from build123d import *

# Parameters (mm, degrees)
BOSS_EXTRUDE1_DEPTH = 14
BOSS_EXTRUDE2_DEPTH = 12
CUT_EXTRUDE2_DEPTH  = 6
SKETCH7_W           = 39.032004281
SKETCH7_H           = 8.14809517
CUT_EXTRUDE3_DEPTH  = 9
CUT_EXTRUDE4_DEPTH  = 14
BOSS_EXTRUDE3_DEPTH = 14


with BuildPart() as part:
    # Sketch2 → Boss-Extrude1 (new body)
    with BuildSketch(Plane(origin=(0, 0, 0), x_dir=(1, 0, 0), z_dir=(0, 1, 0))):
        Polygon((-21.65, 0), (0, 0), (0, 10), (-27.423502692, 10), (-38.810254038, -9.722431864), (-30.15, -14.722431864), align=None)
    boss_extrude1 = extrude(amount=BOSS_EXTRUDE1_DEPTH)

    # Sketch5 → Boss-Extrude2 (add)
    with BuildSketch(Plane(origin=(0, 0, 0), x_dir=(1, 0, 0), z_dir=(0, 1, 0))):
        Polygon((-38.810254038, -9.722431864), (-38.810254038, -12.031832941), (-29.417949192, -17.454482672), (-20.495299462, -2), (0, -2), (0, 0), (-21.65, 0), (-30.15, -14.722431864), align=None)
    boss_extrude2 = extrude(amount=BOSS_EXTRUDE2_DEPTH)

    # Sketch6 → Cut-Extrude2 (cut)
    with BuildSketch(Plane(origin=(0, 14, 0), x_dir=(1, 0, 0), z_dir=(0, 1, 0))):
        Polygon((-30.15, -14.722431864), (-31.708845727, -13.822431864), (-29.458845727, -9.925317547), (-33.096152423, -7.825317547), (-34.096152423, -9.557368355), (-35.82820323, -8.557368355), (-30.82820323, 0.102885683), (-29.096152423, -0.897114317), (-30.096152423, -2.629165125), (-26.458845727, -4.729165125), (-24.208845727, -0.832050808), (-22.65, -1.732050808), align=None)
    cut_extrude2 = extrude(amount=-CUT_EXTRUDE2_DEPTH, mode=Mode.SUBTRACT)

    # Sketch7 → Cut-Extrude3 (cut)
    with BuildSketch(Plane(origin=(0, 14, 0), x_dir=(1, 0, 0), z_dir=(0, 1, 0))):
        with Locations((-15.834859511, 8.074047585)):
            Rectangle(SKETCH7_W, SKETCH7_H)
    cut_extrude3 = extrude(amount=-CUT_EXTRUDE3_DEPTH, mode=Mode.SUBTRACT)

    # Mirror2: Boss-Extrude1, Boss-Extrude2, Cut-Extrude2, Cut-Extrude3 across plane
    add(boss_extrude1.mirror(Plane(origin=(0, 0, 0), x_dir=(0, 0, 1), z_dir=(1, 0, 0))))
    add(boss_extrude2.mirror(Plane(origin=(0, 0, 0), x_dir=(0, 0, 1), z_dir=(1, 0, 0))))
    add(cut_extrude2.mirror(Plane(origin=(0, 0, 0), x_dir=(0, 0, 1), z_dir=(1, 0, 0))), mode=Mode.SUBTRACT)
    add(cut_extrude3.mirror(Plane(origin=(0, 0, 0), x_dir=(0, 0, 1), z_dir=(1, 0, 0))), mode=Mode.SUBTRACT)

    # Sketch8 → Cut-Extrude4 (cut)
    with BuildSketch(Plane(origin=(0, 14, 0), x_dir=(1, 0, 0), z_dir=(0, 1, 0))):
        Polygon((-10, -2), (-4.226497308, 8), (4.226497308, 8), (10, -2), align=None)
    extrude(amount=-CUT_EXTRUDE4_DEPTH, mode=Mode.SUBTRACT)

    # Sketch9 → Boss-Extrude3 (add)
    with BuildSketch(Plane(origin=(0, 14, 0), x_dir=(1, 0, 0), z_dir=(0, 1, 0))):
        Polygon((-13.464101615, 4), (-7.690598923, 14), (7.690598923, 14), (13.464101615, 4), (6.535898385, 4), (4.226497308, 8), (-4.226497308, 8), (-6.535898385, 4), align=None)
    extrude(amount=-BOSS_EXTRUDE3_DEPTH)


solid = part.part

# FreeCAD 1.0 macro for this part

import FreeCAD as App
import Part
import Sketcher

V = App.Vector
Q = App.Units.Quantity

doc = App.newDocument("Part")
body = doc.addObject("PartDesign::Body", "Body")

sketch1 = body.newObject("Sketcher::SketchObject", "Sketch")
sketch1.AttachmentSupport = (doc.getObject("XZ_Plane"), [""])
sketch1.MapMode = "FlatFace"
sketch1.addGeometry([
    Part.LineSegment(V(-22, 0, 0), V(0, 0, 0)),
    Part.LineSegment(V(0, 0, 0), V(0, -10, 0)),
    Part.LineSegment(V(0, -10, 0), V(-27, -10, 0)),
    Part.LineSegment(V(-27, -10, 0), V(-39, 10, 0)),
    Part.LineSegment(V(-39, 10, 0), V(-30, 15, 0)),
    Part.LineSegment(V(-30, 15, 0), V(-22, 0, 0)),
], False)
sketch1.addConstraint([
    Sketcher.Constraint("Coincident", 0, 2, 1, 1),
    Sketcher.Constraint("Coincident", 1, 2, 2, 1),
    Sketcher.Constraint("Coincident", 2, 2, 3, 1),
    Sketcher.Constraint("Coincident", 3, 2, 4, 1),
    Sketcher.Constraint("Coincident", 4, 2, 5, 1),
    Sketcher.Constraint("Coincident", 5, 2, 0, 1),
    Sketcher.Constraint("Horizontal", 0),
    Sketcher.Constraint("Vertical", 1),
    Sketcher.Constraint("Horizontal", 2),
    Sketcher.Constraint("Coincident", 0, 2, -1, 1),
    Sketcher.Constraint("Perpendicular", 3, 4),
    Sketcher.Constraint("Perpendicular", 4, 5),
    Sketcher.Constraint("DistanceY", 1, 2, 1, 1, 10.0),
    Sketcher.Constraint("Angle", 3, Q("120 deg")),
    Sketcher.Constraint("Distance", 4, 10.0),
    Sketcher.Constraint("Distance", 5, 17.0),
    Sketcher.Constraint("DistanceX", 0, 1, 0, 2, 21.65),
])
pad1 = body.newObject("PartDesign::Pad", "Pad")
pad1.Profile = sketch1
pad1.Length = 14
pad1.Reversed = True

sketch2 = body.newObject("Sketcher::SketchObject", "Sketch001")
sketch2.AttachmentSupport = (doc.getObject("XZ_Plane"), [""])
sketch2.MapMode = "FlatFace"
sketch2.addGeometry([
    Part.LineSegment(V(-38.8, 9.7, 0), V(-38.8, 12, 0)),
    Part.LineSegment(V(-38.8, 12, 0), V(-29.4, 17.5, 0)),
    Part.LineSegment(V(-29.4, 17.5, 0), V(-20.5, 2, 0)),
    Part.LineSegment(V(-20.5, 2, 0), V(0, 2, 0)),
    Part.LineSegment(V(0, 2, 0), V(0, 0, 0)),
    Part.LineSegment(V(0, 0, 0), V(-21.6, 0, 0)),
    Part.LineSegment(V(-21.6, 0, 0), V(-30.1, 14.7, 0)),
    Part.LineSegment(V(-30.1, 14.7, 0), V(-38.8, 9.7, 0)),
], False)
sketch2.addConstraint([
    Sketcher.Constraint("Coincident", 0, 2, 1, 1),
    Sketcher.Constraint("Coincident", 1, 2, 2, 1),
    Sketcher.Constraint("Coincident", 2, 2, 3, 1),
    Sketcher.Constraint("Coincident", 3, 2, 4, 1),
    Sketcher.Constraint("Coincident", 4, 2, 5, 1),
    Sketcher.Constraint("Coincident", 5, 2, 6, 1),
    Sketcher.Constraint("Coincident", 6, 2, 7, 1),
    Sketcher.Constraint("Coincident", 7, 2, 0, 1),
    Sketcher.Constraint("Vertical", 0),
    Sketcher.Constraint("Horizontal", 3),
    Sketcher.Constraint("Vertical", 4),
    Sketcher.Constraint("Horizontal", 5),
    Sketcher.Constraint("Coincident", 4, 2, -1, 1),
    Sketcher.Constraint("Perpendicular", 1, 2),
    Sketcher.Constraint("Parallel", 2, 6),
    Sketcher.Constraint("Perpendicular", 6, 7),
    Sketcher.Constraint("DistanceY", 4, 2, 4, 1, 2.0),
    Sketcher.Constraint("Angle", 1, Q("30 deg")),
    Sketcher.Constraint("Distance", 6, 17.0),
    Sketcher.Constraint("Distance", 7, 10.0),
    Sketcher.Constraint("DistanceX", 5, 2, 5, 1, 21.65),
    Sketcher.Constraint("DistanceX", 3, 1, 3, 2, 20.495299),
    Sketcher.Constraint("DistanceY", 0, 1, 0, 2, 2.309401),
])
pad2 = body.newObject("PartDesign::Pad", "Pad001")
pad2.Profile = sketch2
pad2.Length = 12
pad2.Reversed = True

sketch3 = body.newObject("Sketcher::SketchObject", "Sketch002")
sketch3.AttachmentSupport = (doc.getObject("XZ_Plane"), [""])
sketch3.MapMode = "FlatFace"
sketch3.AttachmentOffset = App.Placement(V(0, 0, -14), App.Rotation())
sketch3.addGeometry([
    Part.LineSegment(V(-31.7, 13.8, 0), V(-30.1, 14.7, 0)),
    Part.LineSegment(V(-30.1, 14.7, 0), V(-22.6, 1.7, 0)),
    Part.LineSegment(V(-22.6, 1.7, 0), V(-24.2, 0.8, 0)),
    Part.LineSegment(V(-24.2, 0.8, 0), V(-26.5, 4.7, 0)),
    Part.LineSegment(V(-26.5, 4.7, 0), V(-30.1, 2.6, 0)),
    Part.LineSegment(V(-30.1, 2.6, 0), V(-29.1, 0.9, 0)),
    Part.LineSegment(V(-29.1, 0.9, 0), V(-30.8, -0.1, 0)),
    Part.LineSegment(V(-30.8, -0.1, 0), V(-35.8, 8.6, 0)),
    Part.LineSegment(V(-35.8, 8.6, 0), V(-34.1, 9.6, 0)),
    Part.LineSegment(V(-34.1, 9.6, 0), V(-33.1, 7.8, 0)),
    Part.LineSegment(V(-33.1, 7.8, 0), V(-29.5, 9.9, 0)),
    Part.LineSegment(V(-29.5, 9.9, 0), V(-31.7, 13.8, 0)),
], False)
sketch3.addConstraint([
    Sketcher.Constraint("Coincident", 0, 2, 1, 1),
    Sketcher.Constraint("Coincident", 1, 2, 2, 1),
    Sketcher.Constraint("Coincident", 2, 2, 3, 1),
    Sketcher.Constraint("Coincident", 3, 2, 4, 1),
    Sketcher.Constraint("Coincident", 4, 2, 5, 1),
    Sketcher.Constraint("Coincident", 5, 2, 6, 1),
    Sketcher.Constraint("Coincident", 6, 2, 7, 1),
    Sketcher.Constraint("Coincident", 7, 2, 8, 1),
    Sketcher.Constraint("Coincident", 8, 2, 9, 1),
    Sketcher.Constraint("Coincident", 9, 2, 10, 1),
    Sketcher.Constraint("Coincident", 10, 2, 11, 1),
    Sketcher.Constraint("Coincident", 11, 2, 0, 1),
    Sketcher.Constraint("Perpendicular", 0, 1),
    Sketcher.Constraint("Perpendicular", 1, 2),
    Sketcher.Constraint("Perpendicular", 2, 3),
    Sketcher.Constraint("Perpendicular", 3, 4),
    Sketcher.Constraint("Perpendicular", 4, 5),
    Sketcher.Constraint("Perpendicular", 5, 6),
    Sketcher.Constraint("Perpendicular", 6, 7),
    Sketcher.Constraint("Perpendicular", 7, 8),
    Sketcher.Constraint("Perpendicular", 8, 9),
    Sketcher.Constraint("Perpendicular", 9, 10),
    Sketcher.Constraint("Perpendicular", 10, 11),
    Sketcher.Constraint("Equal", 0, 2),
    Sketcher.Constraint("Equal", 5, 6),
    Sketcher.Constraint("Equal", 6, 8),
    Sketcher.Constraint("Equal", 8, 9),
    Sketcher.Constraint("Equal", 3, 11),
    Sketcher.Constraint("Angle", 0, Q("30 deg")),
    Sketcher.Constraint("Distance", 1, 15.0),
    Sketcher.Constraint("Distance", 5, 2.0),
    Sketcher.Constraint("Distance", 7, 10.0),
    Sketcher.Constraint("Distance", 0, 1.8),
    Sketcher.Constraint("Distance", 4, 4.2),
    Sketcher.Constraint("DistanceX", 0, 2, -1, 1, 30.15),
    Sketcher.Constraint("DistanceY", -1, 1, 0, 2, 14.722432),
])
pocket1 = body.newObject("PartDesign::Pocket", "Pocket")
pocket1.Profile = sketch3
pocket1.Length = 6
pocket1.Reversed = True

sketch4 = body.newObject("Sketcher::SketchObject", "Sketch003")
sketch4.AttachmentSupport = (doc.getObject("XZ_Plane"), [""])
sketch4.MapMode = "FlatFace"
sketch4.AttachmentOffset = App.Placement(V(0, 0, -14), App.Rotation())
sketch4.addGeometry([
    Part.LineSegment(V(-35, -12, 0), V(-35, -4, 0)),
    Part.LineSegment(V(-35, -4, 0), V(4, -4, 0)),
    Part.LineSegment(V(4, -4, 0), V(4, -12, 0)),
    Part.LineSegment(V(4, -12, 0), V(-35, -12, 0)),
], False)
sketch4.addConstraint([
    Sketcher.Constraint("Coincident", 0, 2, 1, 1),
    Sketcher.Constraint("Coincident", 1, 2, 2, 1),
    Sketcher.Constraint("Coincident", 2, 2, 3, 1),
    Sketcher.Constraint("Coincident", 3, 2, 0, 1),
    Sketcher.Constraint("Vertical", 0),
    Sketcher.Constraint("Horizontal", 1),
    Sketcher.Constraint("Vertical", 2),
    Sketcher.Constraint("Horizontal", 3),
    Sketcher.Constraint("DistanceY", 0, 2, -1, 1, 4.0),
    Sketcher.Constraint("DistanceX", 1, 1, 1, 2, 39.032004),
    Sketcher.Constraint("DistanceY", 0, 1, 0, 2, 8.148095),
    Sketcher.Constraint("DistanceX", 0, 2, -1, 1, 35.350862),
])
pocket2 = body.newObject("PartDesign::Pocket", "Pocket001")
pocket2.Profile = sketch4
pocket2.Length = 9
pocket2.Reversed = True
doc.recompute()

mirrored = body.newObject("PartDesign::Mirrored", "Mirrored")
mirrored.Originals = [pad1, pad2, pocket1, pocket2]
mirrored.MirrorPlane = (doc.getObject("YZ_Plane"), [""])
body.Tip = mirrored

sketch5 = body.newObject("Sketcher::SketchObject", "Sketch004")
sketch5.AttachmentSupport = (doc.getObject("XZ_Plane"), [""])
sketch5.MapMode = "FlatFace"
sketch5.AttachmentOffset = App.Placement(V(0, 0, -14), App.Rotation())
sketch5.addGeometry([
    Part.LineSegment(V(-4, -8, 0), V(-10, 2, 0)),
    Part.LineSegment(V(-10, 2, 0), V(10, 2, 0)),
    Part.LineSegment(V(10, 2, 0), V(4, -8, 0)),
    Part.LineSegment(V(4, -8, 0), V(-4, -8, 0)),
], False)
sketch5.addConstraint([
    Sketcher.Constraint("Coincident", 0, 2, 1, 1),
    Sketcher.Constraint("Coincident", 1, 2, 2, 1),
    Sketcher.Constraint("Coincident", 2, 2, 3, 1),
    Sketcher.Constraint("Coincident", 3, 2, 0, 1),
    Sketcher.Constraint("Horizontal", 1),
    Sketcher.Constraint("Horizontal", 3),
    Sketcher.Constraint("Equal", 0, 2),
    Sketcher.Constraint("DistanceX", 1, 1, 1, 2, 20.0),
    Sketcher.Constraint("Angle", 0, Q("120 deg")),
    Sketcher.Constraint("DistanceX", 0, 2, -1, 1, 10.0),
    Sketcher.Constraint("DistanceY", -1, 1, 0, 2, 2.0),
    Sketcher.Constraint("DistanceY", 2, 2, -1, 1, 8.0),
])
pocket3 = body.newObject("PartDesign::Pocket", "Pocket002")
pocket3.Profile = sketch5
pocket3.Length = 14
pocket3.Reversed = True

sketch6 = body.newObject("Sketcher::SketchObject", "Sketch005")
sketch6.AttachmentSupport = (doc.getObject("XZ_Plane"), [""])
sketch6.MapMode = "FlatFace"
sketch6.AttachmentOffset = App.Placement(V(0, 0, -14), App.Rotation())
sketch6.addGeometry([
    Part.LineSegment(V(-7.7, -14, 0), V(-13.5, -4, 0)),
    Part.LineSegment(V(-13.5, -4, 0), V(-6.5, -4, 0)),
    Part.LineSegment(V(-6.5, -4, 0), V(-4.2, -8, 0)),
    Part.LineSegment(V(-4.2, -8, 0), V(4.2, -8, 0)),
    Part.LineSegment(V(4.2, -8, 0), V(6.5, -4, 0)),
    Part.LineSegment(V(6.5, -4, 0), V(13.5, -4, 0)),
    Part.LineSegment(V(13.5, -4, 0), V(7.7, -14, 0)),
    Part.LineSegment(V(7.7, -14, 0), V(-7.7, -14, 0)),
], False)
sketch6.addConstraint([
    Sketcher.Constraint("Coincident", 0, 2, 1, 1),
    Sketcher.Constraint("Coincident", 1, 2, 2, 1),
    Sketcher.Constraint("Coincident", 2, 2, 3, 1),
    Sketcher.Constraint("Coincident", 3, 2, 4, 1),
    Sketcher.Constraint("Coincident", 4, 2, 5, 1),
    Sketcher.Constraint("Coincident", 5, 2, 6, 1),
    Sketcher.Constraint("Coincident", 6, 2, 7, 1),
    Sketcher.Constraint("Coincident", 7, 2, 0, 1),
    Sketcher.Constraint("Horizontal", 1),
    Sketcher.Constraint("Horizontal", 3),
    Sketcher.Constraint("Horizontal", 5),
    Sketcher.Constraint("Horizontal", 7),
    Sketcher.Constraint("Symmetric", 1, 2, 4, 2, -2),
    Sketcher.Constraint("Parallel", 0, 2),
    Sketcher.Constraint("Parallel", 4, 6),
    Sketcher.Constraint("Equal", 1, 5),
    Sketcher.Constraint("Equal", 2, 4),
    Sketcher.Constraint("Angle", 0, Q("120 deg")),
    Sketcher.Constraint("DistanceY", 0, 2, -1, 1, 4.0),
    Sketcher.Constraint("DistanceY", 2, 2, -1, 1, 8.0),
    Sketcher.Constraint("DistanceY", 6, 2, -1, 1, 14.0),
    Sketcher.Constraint("DistanceX", 0, 2, 4, 2, 20.0),
    Sketcher.Constraint("DistanceX", 0, 2, -1, 1, 13.464102),
])
pad3 = body.newObject("PartDesign::Pad", "Pad002")
pad3.Profile = sketch6
pad3.Length = 14

doc.recompute()
